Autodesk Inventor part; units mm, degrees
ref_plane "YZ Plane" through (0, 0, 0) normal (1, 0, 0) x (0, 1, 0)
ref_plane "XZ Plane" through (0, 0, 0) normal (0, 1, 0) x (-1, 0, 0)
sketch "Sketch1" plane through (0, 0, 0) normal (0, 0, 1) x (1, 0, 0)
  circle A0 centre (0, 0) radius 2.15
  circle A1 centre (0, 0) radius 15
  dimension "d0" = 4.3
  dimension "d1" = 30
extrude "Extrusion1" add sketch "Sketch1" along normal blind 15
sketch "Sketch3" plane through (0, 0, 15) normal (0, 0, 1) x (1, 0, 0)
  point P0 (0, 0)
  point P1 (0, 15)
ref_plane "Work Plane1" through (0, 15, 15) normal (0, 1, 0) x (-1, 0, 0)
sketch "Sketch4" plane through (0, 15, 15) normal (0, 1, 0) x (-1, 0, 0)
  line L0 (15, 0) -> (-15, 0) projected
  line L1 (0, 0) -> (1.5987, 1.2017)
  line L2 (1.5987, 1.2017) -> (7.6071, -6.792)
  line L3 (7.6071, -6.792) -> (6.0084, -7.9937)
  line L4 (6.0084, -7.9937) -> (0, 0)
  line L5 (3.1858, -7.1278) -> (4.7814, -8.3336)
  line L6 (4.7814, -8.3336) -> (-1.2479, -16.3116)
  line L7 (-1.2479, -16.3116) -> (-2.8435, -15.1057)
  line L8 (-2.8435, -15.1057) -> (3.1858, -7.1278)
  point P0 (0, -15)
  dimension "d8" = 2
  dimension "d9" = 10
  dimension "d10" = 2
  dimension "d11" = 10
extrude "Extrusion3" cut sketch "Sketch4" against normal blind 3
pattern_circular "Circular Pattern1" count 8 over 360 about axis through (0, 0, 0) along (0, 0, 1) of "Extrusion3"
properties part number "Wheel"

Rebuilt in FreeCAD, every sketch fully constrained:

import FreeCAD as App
import Part
import Sketcher

V = App.Vector
Q = App.Units.Quantity

doc = App.newDocument("Part")
body = doc.addObject("PartDesign::Body", "Body")

# Sketch on XY plane
sketch1 = doc.addObject("Sketcher::SketchObject", "Sketch")
body.addObject(sketch1)
sketch1.AttachmentSupport = (doc.XY_Plane, [""])
sketch1.MapMode = "FlatFace"
sketch1.addGeometry([
    Part.Circle(V(0, 0, 0), V(0, 0, 1), 15),
    Part.Circle(V(0, 0, 0), V(0, 0, 1), 2.1),
], False)
sketch1.addConstraint([
    Sketcher.Constraint("Coincident", 0, 3, -1, 1),
    Sketcher.Constraint("Coincident", 1, 3, -1, 1),
    Sketcher.Constraint("Diameter", 0, 30.0),
    Sketcher.Constraint("Diameter", 1, 4.3),
])
pad1 = doc.addObject("PartDesign::Pad", "Pad")
body.addObject(pad1)
pad1.Profile = sketch1
pad1.Length = 15

# Sketch on XZ plane
sketch2 = doc.addObject("Sketcher::SketchObject", "Sketch001")
body.addObject(sketch2)
sketch2.AttachmentSupport = (doc.XZ_Plane, [""])
sketch2.MapMode = "FlatFace"
sketch2.AttachmentOffset = App.Placement(V(0, 0, -15), App.Rotation())
sketch2.addGeometry([
    Part.LineSegment(V(-7.6, 8.2, 0), V(-1.6, 16.2, 0)),  # 0
    Part.LineSegment(V(-1.6, 16.2, 0), V(0, 15, 0)),  # 1
    Part.LineSegment(V(0, 15, 0), V(-6, 7, 0)),  # 2
    Part.LineSegment(V(-6, 7, 0), V(-7.6, 8.2, 0)),  # 3
    Part.LineSegment(V(-4.8, 6.7, 0), V(-3.2, 7.9, 0)),  # 4
    Part.LineSegment(V(-3.2, 7.9, 0), V(2.8, -0.1, 0)),  # 5
    Part.LineSegment(V(2.8, -0.1, 0), V(1.2, -1.3, 0)),  # 6
    Part.LineSegment(V(1.2, -1.3, 0), V(-4.8, 6.7, 0)),  # 7
], False)
sketch2.addConstraint([
    Sketcher.Constraint("Coincident", 0, 2, 1, 1),
    Sketcher.Constraint("Coincident", 1, 2, 2, 1),
    Sketcher.Constraint("Coincident", 2, 2, 3, 1),
    Sketcher.Constraint("Coincident", 3, 2, 0, 1),
    Sketcher.Constraint("Coincident", 4, 2, 5, 1),
    Sketcher.Constraint("Coincident", 5, 2, 6, 1),
    Sketcher.Constraint("Coincident", 6, 2, 7, 1),
    Sketcher.Constraint("Coincident", 7, 2, 4, 1),
    Sketcher.Constraint("PointOnObject", 1, 2, -2),
    Sketcher.Constraint("Perpendicular", 0, 1),
    Sketcher.Constraint("Perpendicular", 1, 2),
    Sketcher.Constraint("Perpendicular", 2, 3),
    Sketcher.Constraint("Perpendicular", 4, 5),
    Sketcher.Constraint("Perpendicular", 5, 6),
    Sketcher.Constraint("Perpendicular", 6, 7),
    Sketcher.Constraint("Equal", 3, 4),
    Sketcher.Constraint("Equal", 2, 5),
    Sketcher.Constraint("Distance", 0, 10.0),
    Sketcher.Constraint("Distance", 1, 2.0),
    Sketcher.Constraint("DistanceY", -1, 1, 1, 2, 15.0),
    Sketcher.Constraint("Angle", 0, Q("53.07 deg")),
    Sketcher.Constraint("Angle", 5, Q("-52.9198 deg")),
    Sketcher.Constraint("DistanceY", 7, 2, 2, 2, 0.34),
    Sketcher.Constraint("DistanceX", -1, 1, 6, 2, 1.248),
])
pocket1 = doc.addObject("PartDesign::Pocket", "Pocket")
body.addObject(pocket1)
pocket1.Profile = sketch2
pocket1.Length = 3
pocket1.Reversed = True
doc.recompute()

polarpattern = doc.addObject("PartDesign::PolarPattern", "PolarPattern")
body.addObject(polarpattern)
polarpattern.Originals = [pocket1]
polarpattern.Axis = (doc.Z_Axis, [""])
polarpattern.Angle = 360
polarpattern.Occurrences = 8
body.Tip = polarpattern

doc.recompute()
